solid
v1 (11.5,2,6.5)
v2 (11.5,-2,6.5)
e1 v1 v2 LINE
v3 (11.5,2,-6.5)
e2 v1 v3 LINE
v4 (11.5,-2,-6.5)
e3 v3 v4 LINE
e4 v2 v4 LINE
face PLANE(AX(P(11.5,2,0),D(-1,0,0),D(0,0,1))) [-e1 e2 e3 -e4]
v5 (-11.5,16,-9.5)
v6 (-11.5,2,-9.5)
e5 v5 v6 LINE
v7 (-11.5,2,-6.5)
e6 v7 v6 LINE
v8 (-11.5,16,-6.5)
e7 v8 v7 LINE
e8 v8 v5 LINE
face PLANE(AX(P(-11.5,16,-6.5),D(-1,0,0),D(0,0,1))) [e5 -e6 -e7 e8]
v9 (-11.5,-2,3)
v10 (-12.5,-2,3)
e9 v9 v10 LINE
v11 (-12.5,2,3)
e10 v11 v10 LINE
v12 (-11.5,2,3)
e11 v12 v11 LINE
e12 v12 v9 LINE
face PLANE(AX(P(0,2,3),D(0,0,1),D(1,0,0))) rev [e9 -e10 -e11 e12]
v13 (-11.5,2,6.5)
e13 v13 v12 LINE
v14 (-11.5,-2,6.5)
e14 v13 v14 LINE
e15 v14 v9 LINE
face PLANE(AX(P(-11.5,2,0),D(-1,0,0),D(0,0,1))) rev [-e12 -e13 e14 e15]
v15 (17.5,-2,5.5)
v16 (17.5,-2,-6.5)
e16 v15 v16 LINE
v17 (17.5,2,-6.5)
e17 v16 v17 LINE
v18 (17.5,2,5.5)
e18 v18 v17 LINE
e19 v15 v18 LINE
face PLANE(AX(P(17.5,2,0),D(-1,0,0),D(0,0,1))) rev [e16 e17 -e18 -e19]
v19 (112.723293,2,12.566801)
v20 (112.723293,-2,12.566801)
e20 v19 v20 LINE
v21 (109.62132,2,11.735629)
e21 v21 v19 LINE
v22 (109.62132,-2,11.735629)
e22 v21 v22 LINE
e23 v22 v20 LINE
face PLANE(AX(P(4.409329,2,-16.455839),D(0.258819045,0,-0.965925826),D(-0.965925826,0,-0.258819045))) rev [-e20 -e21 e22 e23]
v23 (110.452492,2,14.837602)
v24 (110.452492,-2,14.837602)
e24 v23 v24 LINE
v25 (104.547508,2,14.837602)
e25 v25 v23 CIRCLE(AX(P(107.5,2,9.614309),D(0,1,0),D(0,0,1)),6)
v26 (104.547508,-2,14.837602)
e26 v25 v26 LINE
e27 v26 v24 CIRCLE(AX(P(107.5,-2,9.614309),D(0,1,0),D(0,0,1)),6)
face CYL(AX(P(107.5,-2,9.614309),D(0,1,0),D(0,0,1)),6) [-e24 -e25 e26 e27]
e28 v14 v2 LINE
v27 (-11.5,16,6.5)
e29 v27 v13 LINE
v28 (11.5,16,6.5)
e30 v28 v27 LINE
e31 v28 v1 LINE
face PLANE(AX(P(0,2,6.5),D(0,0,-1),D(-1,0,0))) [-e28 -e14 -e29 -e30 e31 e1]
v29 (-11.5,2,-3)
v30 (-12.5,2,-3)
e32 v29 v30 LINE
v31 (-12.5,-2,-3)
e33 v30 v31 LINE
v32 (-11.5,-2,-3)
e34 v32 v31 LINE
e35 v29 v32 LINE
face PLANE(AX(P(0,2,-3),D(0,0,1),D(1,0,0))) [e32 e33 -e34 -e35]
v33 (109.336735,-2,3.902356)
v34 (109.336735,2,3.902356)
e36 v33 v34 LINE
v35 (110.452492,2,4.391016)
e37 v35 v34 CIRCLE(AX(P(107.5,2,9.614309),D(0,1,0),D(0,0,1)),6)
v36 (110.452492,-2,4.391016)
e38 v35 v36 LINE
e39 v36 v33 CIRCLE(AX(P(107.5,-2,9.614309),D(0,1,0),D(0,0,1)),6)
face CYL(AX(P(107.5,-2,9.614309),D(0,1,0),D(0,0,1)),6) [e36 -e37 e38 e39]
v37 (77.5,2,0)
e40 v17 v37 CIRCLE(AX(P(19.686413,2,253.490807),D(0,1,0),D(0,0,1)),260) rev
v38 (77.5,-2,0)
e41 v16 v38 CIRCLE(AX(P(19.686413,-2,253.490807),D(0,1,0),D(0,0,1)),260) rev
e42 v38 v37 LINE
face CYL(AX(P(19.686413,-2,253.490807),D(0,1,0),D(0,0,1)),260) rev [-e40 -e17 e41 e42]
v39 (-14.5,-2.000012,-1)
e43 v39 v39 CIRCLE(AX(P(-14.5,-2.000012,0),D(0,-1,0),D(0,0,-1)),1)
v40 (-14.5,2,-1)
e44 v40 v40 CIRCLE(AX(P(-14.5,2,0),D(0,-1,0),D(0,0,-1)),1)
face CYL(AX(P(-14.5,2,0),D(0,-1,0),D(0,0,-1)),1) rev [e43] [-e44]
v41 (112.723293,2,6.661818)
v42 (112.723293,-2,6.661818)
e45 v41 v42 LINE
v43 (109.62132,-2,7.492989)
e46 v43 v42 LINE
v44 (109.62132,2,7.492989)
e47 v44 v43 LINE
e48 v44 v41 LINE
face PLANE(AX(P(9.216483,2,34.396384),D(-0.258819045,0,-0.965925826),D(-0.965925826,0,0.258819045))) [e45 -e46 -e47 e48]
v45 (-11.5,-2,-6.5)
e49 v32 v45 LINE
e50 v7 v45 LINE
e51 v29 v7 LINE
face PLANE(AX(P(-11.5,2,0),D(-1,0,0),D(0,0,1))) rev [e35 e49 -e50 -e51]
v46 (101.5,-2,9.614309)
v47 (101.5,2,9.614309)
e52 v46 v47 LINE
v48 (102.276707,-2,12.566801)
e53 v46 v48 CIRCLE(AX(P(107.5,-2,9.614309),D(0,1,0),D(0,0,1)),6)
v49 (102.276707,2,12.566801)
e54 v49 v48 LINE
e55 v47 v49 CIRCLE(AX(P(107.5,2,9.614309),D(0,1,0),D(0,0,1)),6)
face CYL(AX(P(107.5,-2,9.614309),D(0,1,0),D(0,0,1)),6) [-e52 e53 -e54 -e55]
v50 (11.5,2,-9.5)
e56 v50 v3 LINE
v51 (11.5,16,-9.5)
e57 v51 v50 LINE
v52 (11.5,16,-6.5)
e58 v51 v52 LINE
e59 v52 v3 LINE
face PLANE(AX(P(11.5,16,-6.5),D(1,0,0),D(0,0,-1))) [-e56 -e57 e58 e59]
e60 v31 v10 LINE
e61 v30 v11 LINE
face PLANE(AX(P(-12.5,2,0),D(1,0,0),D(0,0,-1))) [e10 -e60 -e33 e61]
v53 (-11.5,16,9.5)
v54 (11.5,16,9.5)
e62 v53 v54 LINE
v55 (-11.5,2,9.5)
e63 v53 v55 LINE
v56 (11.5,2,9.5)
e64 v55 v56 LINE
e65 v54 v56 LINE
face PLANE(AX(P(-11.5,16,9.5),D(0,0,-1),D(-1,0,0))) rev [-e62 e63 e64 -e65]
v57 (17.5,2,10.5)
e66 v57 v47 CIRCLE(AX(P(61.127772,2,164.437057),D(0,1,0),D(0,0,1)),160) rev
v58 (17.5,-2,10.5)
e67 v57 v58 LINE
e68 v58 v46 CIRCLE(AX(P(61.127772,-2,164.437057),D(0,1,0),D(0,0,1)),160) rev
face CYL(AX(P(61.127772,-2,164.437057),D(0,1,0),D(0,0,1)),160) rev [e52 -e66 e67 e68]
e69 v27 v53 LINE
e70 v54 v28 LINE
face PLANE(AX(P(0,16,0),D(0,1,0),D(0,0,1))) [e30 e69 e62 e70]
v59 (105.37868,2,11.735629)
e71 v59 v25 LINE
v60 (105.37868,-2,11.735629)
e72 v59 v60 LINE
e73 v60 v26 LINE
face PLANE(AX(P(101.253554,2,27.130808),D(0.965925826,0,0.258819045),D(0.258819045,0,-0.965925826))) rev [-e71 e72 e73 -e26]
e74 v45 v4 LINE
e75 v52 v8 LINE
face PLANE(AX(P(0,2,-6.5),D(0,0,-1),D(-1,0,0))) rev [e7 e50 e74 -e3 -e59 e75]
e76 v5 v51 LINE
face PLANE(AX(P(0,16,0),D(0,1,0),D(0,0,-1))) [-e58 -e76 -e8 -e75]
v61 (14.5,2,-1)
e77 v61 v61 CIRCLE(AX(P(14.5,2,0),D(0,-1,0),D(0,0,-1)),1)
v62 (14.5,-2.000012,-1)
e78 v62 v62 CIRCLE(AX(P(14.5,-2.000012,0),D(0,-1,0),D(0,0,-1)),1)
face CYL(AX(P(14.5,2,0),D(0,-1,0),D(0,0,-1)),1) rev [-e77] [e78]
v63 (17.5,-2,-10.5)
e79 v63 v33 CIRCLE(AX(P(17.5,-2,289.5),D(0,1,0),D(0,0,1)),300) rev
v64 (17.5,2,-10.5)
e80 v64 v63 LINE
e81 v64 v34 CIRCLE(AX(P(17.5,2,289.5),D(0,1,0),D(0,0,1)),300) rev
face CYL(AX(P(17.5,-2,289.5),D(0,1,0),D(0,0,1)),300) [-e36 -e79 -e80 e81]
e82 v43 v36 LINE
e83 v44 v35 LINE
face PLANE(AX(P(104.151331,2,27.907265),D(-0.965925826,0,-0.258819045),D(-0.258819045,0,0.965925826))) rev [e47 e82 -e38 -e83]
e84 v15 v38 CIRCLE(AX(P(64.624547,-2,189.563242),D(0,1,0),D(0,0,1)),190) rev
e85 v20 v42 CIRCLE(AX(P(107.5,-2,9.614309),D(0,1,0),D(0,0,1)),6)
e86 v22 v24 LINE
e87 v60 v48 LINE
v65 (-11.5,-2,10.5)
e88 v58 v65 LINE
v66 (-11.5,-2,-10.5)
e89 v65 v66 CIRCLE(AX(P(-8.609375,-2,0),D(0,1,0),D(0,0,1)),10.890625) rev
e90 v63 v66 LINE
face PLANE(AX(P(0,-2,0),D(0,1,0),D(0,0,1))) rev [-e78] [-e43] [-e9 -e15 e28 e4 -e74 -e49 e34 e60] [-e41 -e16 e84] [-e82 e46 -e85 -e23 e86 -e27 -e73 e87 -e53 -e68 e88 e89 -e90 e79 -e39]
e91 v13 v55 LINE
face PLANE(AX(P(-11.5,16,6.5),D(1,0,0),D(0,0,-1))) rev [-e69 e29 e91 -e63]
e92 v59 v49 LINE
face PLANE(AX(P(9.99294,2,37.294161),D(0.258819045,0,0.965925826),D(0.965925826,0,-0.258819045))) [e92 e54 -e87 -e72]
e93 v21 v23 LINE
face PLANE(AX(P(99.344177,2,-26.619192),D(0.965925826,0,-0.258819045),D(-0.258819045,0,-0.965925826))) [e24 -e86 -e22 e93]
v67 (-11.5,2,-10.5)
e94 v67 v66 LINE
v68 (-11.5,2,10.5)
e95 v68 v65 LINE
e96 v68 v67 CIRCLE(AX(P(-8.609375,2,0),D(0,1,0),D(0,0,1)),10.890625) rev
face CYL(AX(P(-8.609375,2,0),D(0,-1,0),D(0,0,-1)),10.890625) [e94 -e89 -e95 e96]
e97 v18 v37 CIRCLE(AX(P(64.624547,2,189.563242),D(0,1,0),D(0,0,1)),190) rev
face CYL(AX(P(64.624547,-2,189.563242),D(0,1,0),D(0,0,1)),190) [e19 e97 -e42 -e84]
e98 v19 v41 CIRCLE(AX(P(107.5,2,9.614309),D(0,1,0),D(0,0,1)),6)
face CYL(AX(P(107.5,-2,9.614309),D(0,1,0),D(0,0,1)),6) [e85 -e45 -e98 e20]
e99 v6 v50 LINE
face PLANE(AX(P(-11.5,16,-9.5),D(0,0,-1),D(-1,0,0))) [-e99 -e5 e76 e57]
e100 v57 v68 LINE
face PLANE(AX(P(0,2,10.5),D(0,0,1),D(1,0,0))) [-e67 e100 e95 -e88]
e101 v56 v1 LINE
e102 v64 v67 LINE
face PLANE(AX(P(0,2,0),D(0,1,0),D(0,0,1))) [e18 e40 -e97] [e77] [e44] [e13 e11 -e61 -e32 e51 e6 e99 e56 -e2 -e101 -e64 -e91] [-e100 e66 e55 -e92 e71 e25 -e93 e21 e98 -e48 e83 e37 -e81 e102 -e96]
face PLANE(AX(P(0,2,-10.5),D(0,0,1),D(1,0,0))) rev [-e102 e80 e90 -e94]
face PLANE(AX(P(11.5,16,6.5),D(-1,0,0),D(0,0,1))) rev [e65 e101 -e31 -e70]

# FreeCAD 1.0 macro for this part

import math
import FreeCAD as App
import Part
import Sketcher
Q = App.Units.Quantity


def add_polygon(sketch, points):
    """Adds a closed chain of lines whose ends are joined by coincident constraints."""
    first, n = sketch.GeometryCount, len(points)
    for a, b in zip(points, points[1:] + points[:1]):
        sketch.addGeometry(Part.LineSegment(App.Vector(*a, 0), App.Vector(*b, 0)), False)
    for i in range(n):
        sketch.addConstraint(Sketcher.Constraint("Coincident", first + i, 2, first + (i + 1) % n, 1))

doc = App.newDocument("Part")
params = doc.addObject("Spreadsheet::Sheet", "Params")
for row, (alias, value) in enumerate([
    ("sketch1_width", "29 mm"),
    ("sketch1_width2", "23 mm"),
    ("sketch1_width3", "1 mm"),
    ("sketch1_height", "21 mm"),
    ("sketch1_height2", "13 mm"),
    ("pad1_length", "4 mm"),
    ("sketch2_radius", "160 mm"),
    ("sketch2_radius2", "6 mm"),
    ("sketch2_radius3", "300 mm"),
    ("sketch2_radius4", "260 mm"),
    ("sketch2_radius5", "190 mm"),
    ("pad2_length", "4 mm"),
    ("sketch3_radius", "6 mm"),
    ("sketch4_diameter", "2 mm"),
    ("sketch5_width", "23 mm"),
    ("sketch5_height", "3 mm"),
    ("pad3_length", "14 mm"),
], start=1):
    params.set(f"A{row}", alias)
    params.set(f"B{row}", "=" + value)
    params.setAlias(f"B{row}", alias)

body = doc.addObject("PartDesign::Body", "Body")

# Sketch on XZ plane
sketch1 = body.newObject("Sketcher::SketchObject", "Sketch")
sketch1.AttachmentSupport = (doc.getObject("XZ_Plane"), [""])
sketch1.MapMode = "FlatFace"
sketch1.addGeometry(Part.LineSegment(App.Vector(-11.5, 10.5, 0), App.Vector(17.5, 10.5, 0)), False)  # 0
sketch1.addGeometry(Part.LineSegment(App.Vector(17.5, 10.5, 0), App.Vector(17.5, -10.5, 0)), False)  # 1
sketch1.addGeometry(Part.LineSegment(App.Vector(17.5, -10.5, 0), App.Vector(-11.5, -10.5, 0)), False)  # 2
sketch1.addGeometry(Part.ArcOfCircle(Part.Circle(App.Vector(-8.6, 0, 0), App.Vector(0, 0, 1), 10.9), math.radians(105), math.radians(255)), False)  # 3
add_polygon(sketch1, [(11.5, -6.5), (11.5, 6.5), (-11.5, 6.5), (-11.5, 3), (-12.5, 3), (-12.5, -3), (-11.5, -3), (-11.5, -6.5)])  # lines 4-11
sketch1.addConstraint([
    Sketcher.Constraint("Coincident", 0, 2, 1, 1),
    Sketcher.Constraint("Coincident", 1, 2, 2, 1),
    Sketcher.Constraint("Coincident", 2, 2, 3, 2),
    Sketcher.Constraint("Coincident", 3, 1, 0, 1),
    Sketcher.Constraint("Horizontal", 0),
    Sketcher.Constraint("Vertical", 1),
    Sketcher.Constraint("Horizontal", 2),
    Sketcher.Constraint("Vertical", 4),
    Sketcher.Constraint("Horizontal", 5),
    Sketcher.Constraint("Vertical", 6),
    Sketcher.Constraint("Horizontal", 7),
    Sketcher.Constraint("Vertical", 8),
    Sketcher.Constraint("Horizontal", 9),
    Sketcher.Constraint("Vertical", 10),
    Sketcher.Constraint("Horizontal", 11),
    Sketcher.Constraint("Symmetric", 4, 2, 10, 2, -1, 1),
    Sketcher.Constraint("Symmetric", 2, 2, 3, 1, -1),
    Sketcher.Constraint("Symmetric", 6, 2, 9, 2, -1),
    Sketcher.Constraint("Vertical", 3, 1, 5, 2),
    Sketcher.Constraint("DistanceX", 0, 1, 0, 2, 29.0),
    Sketcher.Constraint("DistanceX", 5, 2, 5, 1, 23.0),
    Sketcher.Constraint("DistanceX", 7, 2, 7, 1, 1.0),
    Sketcher.Constraint("DistanceY", 1, 2, 1, 1, 21.0),
    Sketcher.Constraint("DistanceY", 4, 1, 4, 2, 13.0),
    Sketcher.Constraint("DistanceY", 8, 2, 8, 1, 6.0),
    Sketcher.Constraint("Radius", 3, 10.890625),
])
sketch1.setExpression("Constraints[27]", "Params.sketch1_width")
sketch1.setExpression("Constraints[28]", "Params.sketch1_width2")
sketch1.setExpression("Constraints[29]", "Params.sketch1_width3")
sketch1.setExpression("Constraints[30]", "Params.sketch1_height")
sketch1.setExpression("Constraints[31]", "Params.sketch1_height2")
pad1 = body.newObject("PartDesign::Pad", "Pad")
pad1.Profile = sketch1
pad1.setExpression("Length", "Params.pad1_length")
pad1.Midplane = True

# Sketch on XZ plane
sketch2 = body.newObject("Sketcher::SketchObject", "Sketch001")
sketch2.AttachmentSupport = (doc.getObject("XZ_Plane"), [""])
sketch2.MapMode = "FlatFace"
sketch2.AttachmentOffset = App.Placement(App.Vector(0, 0, -2), App.Rotation())
sketch2.addGeometry([
    Part.LineSegment(App.Vector(17.5, 5.5, 0), App.Vector(17.5, 10.5, 0)),  # 0
    Part.ArcOfCircle(Part.Circle(App.Vector(61.1, 164.4, 0), App.Vector(0, 0, 1), 160), math.radians(-106), math.radians(-75)),  # 1
    Part.ArcOfCircle(Part.Circle(App.Vector(107.5, 9.6, 0), App.Vector(0, 0, 1), 6), math.radians(-72), math.radians(180)),  # 2
    Part.ArcOfCircle(Part.Circle(App.Vector(17.5, 289.5, 0), App.Vector(0, 0, 1), 300), math.radians(-90), math.radians(-72.17)),  # 3
    Part.LineSegment(App.Vector(17.5, -10.5, 0), App.Vector(17.5, -6.5, 0)),  # 4
    Part.ArcOfCircle(Part.Circle(App.Vector(19.7, 253.5, 0), App.Vector(0, 0, 1), 260), math.radians(-90.48), math.radians(-77.15)),  # 5
    Part.ArcOfCircle(Part.Circle(App.Vector(64.6, 189.6, 0), App.Vector(0, 0, 1), 190), math.radians(-104.36), math.radians(-86.11)),  # 6
], False)
sketch2.addConstraint([
    Sketcher.Constraint("Coincident", 0, 2, 1, 1),
    Sketcher.Constraint("Coincident", 1, 2, 2, 2),
    Sketcher.Constraint("Tangent", 2, 1, 3, 2),
    Sketcher.Constraint("Coincident", 3, 1, 4, 1),
    Sketcher.Constraint("Coincident", 4, 2, 5, 1),
    Sketcher.Constraint("Coincident", 5, 2, 6, 2),
    Sketcher.Constraint("Coincident", 6, 1, 0, 1),
    Sketcher.Constraint("Vertical", 0),
    Sketcher.Constraint("Vertical", 4),
    Sketcher.Constraint("Symmetric", 0, 2, 3, 1, -1),
    Sketcher.Constraint("PointOnObject", 5, 2, -1),
    Sketcher.Constraint("Horizontal", 2, 3, 1, 2),
    Sketcher.Constraint("Vertical", 3, 3, 0, 2),
    Sketcher.Constraint("Radius", 1, 160.0),
    Sketcher.Constraint("Radius", 2, 6.0),
    Sketcher.Constraint("Radius", 3, 300.0),
    Sketcher.Constraint("Radius", 5, 260.0),
    Sketcher.Constraint("Radius", 6, 190.0),
    Sketcher.Constraint("DistanceY", 0, 1, 0, 2, 5.0),
    Sketcher.Constraint("DistanceY", 4, 1, 4, 2, 4.0),
    Sketcher.Constraint("DistanceX", 3, 3, 2, 3, 90.0),
    Sketcher.Constraint("DistanceY", 0, 2, 3, 3, 279.0),
    Sketcher.Constraint("DistanceX", 5, 2, 1, 2, 24.0),
    Sketcher.Constraint("DistanceX", -1, 1, 2, 3, 107.5),
])
sketch2.setExpression("Constraints[13]", "Params.sketch2_radius")
sketch2.setExpression("Constraints[14]", "Params.sketch2_radius2")
sketch2.setExpression("Constraints[15]", "Params.sketch2_radius3")
sketch2.setExpression("Constraints[16]", "Params.sketch2_radius4")
sketch2.setExpression("Constraints[17]", "Params.sketch2_radius5")
pad2 = body.newObject("PartDesign::Pad", "Pad001")
pad2.Profile = sketch2
pad2.setExpression("Length", "Params.pad2_length")

# Sketch on XZ plane
sketch3 = body.newObject("Sketcher::SketchObject", "Sketch002")
sketch3.AttachmentSupport = (doc.getObject("XZ_Plane"), [""])
sketch3.MapMode = "FlatFace"
sketch3.AttachmentOffset = App.Placement(App.Vector(0, 0, 2), App.Rotation())
sketch3.addGeometry([
    Part.LineSegment(App.Vector(102.3, 12.6, 0), App.Vector(105.4, 11.7, 0)),  # 0
    Part.LineSegment(App.Vector(105.4, 11.7, 0), App.Vector(104.5, 14.8, 0)),  # 1
    Part.ArcOfCircle(Part.Circle(App.Vector(107.5, 9.6, 0), App.Vector(0, 0, 1), 6), math.radians(119), math.radians(151)),  # 2
    Part.LineSegment(App.Vector(110.5, 14.8, 0), App.Vector(109.6, 11.7, 0)),  # 3
    Part.LineSegment(App.Vector(109.6, 11.7, 0), App.Vector(112.7, 12.6, 0)),  # 4
    Part.ArcOfCircle(Part.Circle(App.Vector(107.5, 9.6, 0), App.Vector(0, 0, 1), 6), math.radians(29), math.radians(61)),  # 5
    Part.LineSegment(App.Vector(112.7, 6.7, 0), App.Vector(109.6, 7.5, 0)),  # 6
    Part.LineSegment(App.Vector(109.6, 7.5, 0), App.Vector(110.5, 4.4, 0)),  # 7
    Part.ArcOfCircle(Part.Circle(App.Vector(107.5, 9.6, 0), App.Vector(0, 0, 1), 6), math.radians(-61), math.radians(-29)),  # 8
], False)
sketch3.addConstraint([
    Sketcher.Constraint("Coincident", 0, 2, 1, 1),
    Sketcher.Constraint("Coincident", 1, 2, 2, 1),
    Sketcher.Constraint("Coincident", 2, 2, 0, 1),
    Sketcher.Constraint("Coincident", 3, 2, 4, 1),
    Sketcher.Constraint("Coincident", 4, 2, 5, 1),
    Sketcher.Constraint("Coincident", 5, 2, 3, 1),
    Sketcher.Constraint("Coincident", 6, 2, 7, 1),
    Sketcher.Constraint("Coincident", 7, 2, 8, 1),
    Sketcher.Constraint("Coincident", 8, 2, 6, 1),
    Sketcher.Constraint("Coincident", 5, 3, 2, 3),
    Sketcher.Constraint("Coincident", 8, 3, 2, 3),
    Sketcher.Constraint("Equal", 2, 5),
    Sketcher.Constraint("Equal", 5, 8),
    Sketcher.Constraint("Perpendicular", 0, 3),
    Sketcher.Constraint("Perpendicular", 1, 4),
    Sketcher.Constraint("Perpendicular", 3, 6),
    Sketcher.Constraint("Perpendicular", 4, 7),
    Sketcher.Constraint("Horizontal", 0, 2, 3, 2),
    Sketcher.Constraint("Horizontal", 2, 2, 4, 2),
    Sketcher.Constraint("Horizontal", 1, 2, 5, 2),
    Sketcher.Constraint("Vertical", 3, 2, 6, 2),
    Sketcher.Constraint("Vertical", 5, 2, 7, 2),
    Sketcher.Constraint("Equal", 0, 1),
    Sketcher.Constraint("Radius", 2, 6.0),
    Sketcher.Constraint("Angle", 0, Q("-15 deg")),
    Sketcher.Constraint("DistanceX", -1, 1, 2, 3, 107.5),
    Sketcher.Constraint("Distance", 0, 3.211399),
    Sketcher.Constraint("DistanceY", -1, 1, 2, 2, 12.566801),
])
sketch3.setExpression("Constraints[23]", "Params.sketch3_radius")
pocket1 = body.newObject("PartDesign::Pocket", "Pocket")
pocket1.Profile = sketch3
pocket1.Type = "ThroughAll"
pocket1.Midplane = True

# Sketch on XZ plane
sketch4 = body.newObject("Sketcher::SketchObject", "Sketch003")
sketch4.AttachmentSupport = (doc.getObject("XZ_Plane"), [""])
sketch4.MapMode = "FlatFace"
sketch4.AttachmentOffset = App.Placement(App.Vector(0, 0, 2), App.Rotation())
sketch4.addGeometry([
    Part.Circle(App.Vector(14.5, 0, 0), App.Vector(0, 0, 1), 1),
    Part.Circle(App.Vector(-14.5, 0, 0), App.Vector(0, 0, 1), 1),
], False)
sketch4.addConstraint([
    Sketcher.Constraint("Equal", 0, 1),
    Sketcher.Constraint("Symmetric", 0, 3, 1, 3, -1, 1),
    Sketcher.Constraint("PointOnObject", 0, 3, -1),
    Sketcher.Constraint("Diameter", 0, 2.0),
    Sketcher.Constraint("DistanceX", 1, 3, 0, 3, 29.0),
])
sketch4.setExpression("Constraints[3]", "Params.sketch4_diameter")
pocket2 = body.newObject("PartDesign::Pocket", "Pocket001")
pocket2.Profile = sketch4
pocket2.Type = "ThroughAll"
pocket2.Midplane = True

# Sketch on XZ plane
sketch5 = body.newObject("Sketcher::SketchObject", "Sketch004")
sketch5.AttachmentSupport = (doc.getObject("XZ_Plane"), [""])
sketch5.MapMode = "FlatFace"
sketch5.AttachmentOffset = App.Placement(App.Vector(0, 0, -2), App.Rotation())
add_polygon(sketch5, [(-11.5, 6.5), (-11.5, 9.5), (11.5, 9.5), (11.5, 6.5)])  # lines 0-3
sketch5.addConstraint([
    Sketcher.Constraint("Vertical", 0),
    Sketcher.Constraint("Horizontal", 1),
    Sketcher.Constraint("Vertical", 2),
    Sketcher.Constraint("Horizontal", 3),
    Sketcher.Constraint("DistanceX", 1, 1, 1, 2, 23.0),
    Sketcher.Constraint("DistanceY", 0, 1, 0, 2, 3.0),
    Sketcher.Constraint("DistanceX", 0, 2, -1, 1, 11.5),
    Sketcher.Constraint("DistanceY", -1, 1, 0, 2, 9.5),
])
sketch5.setExpression("Constraints[8]", "Params.sketch5_width")
sketch5.setExpression("Constraints[9]", "Params.sketch5_height")
pad3 = body.newObject("PartDesign::Pad", "Pad002")
pad3.Profile = sketch5
pad3.setExpression("Length", "Params.pad3_length")
pad3.Reversed = True
doc.recompute()

mirrored = body.newObject("PartDesign::Mirrored", "Mirrored")
mirrored.Originals = [pad3]
mirrored.MirrorPlane = (doc.getObject("XY_Plane"), [""])
body.Tip = mirrored

doc.recompute()
